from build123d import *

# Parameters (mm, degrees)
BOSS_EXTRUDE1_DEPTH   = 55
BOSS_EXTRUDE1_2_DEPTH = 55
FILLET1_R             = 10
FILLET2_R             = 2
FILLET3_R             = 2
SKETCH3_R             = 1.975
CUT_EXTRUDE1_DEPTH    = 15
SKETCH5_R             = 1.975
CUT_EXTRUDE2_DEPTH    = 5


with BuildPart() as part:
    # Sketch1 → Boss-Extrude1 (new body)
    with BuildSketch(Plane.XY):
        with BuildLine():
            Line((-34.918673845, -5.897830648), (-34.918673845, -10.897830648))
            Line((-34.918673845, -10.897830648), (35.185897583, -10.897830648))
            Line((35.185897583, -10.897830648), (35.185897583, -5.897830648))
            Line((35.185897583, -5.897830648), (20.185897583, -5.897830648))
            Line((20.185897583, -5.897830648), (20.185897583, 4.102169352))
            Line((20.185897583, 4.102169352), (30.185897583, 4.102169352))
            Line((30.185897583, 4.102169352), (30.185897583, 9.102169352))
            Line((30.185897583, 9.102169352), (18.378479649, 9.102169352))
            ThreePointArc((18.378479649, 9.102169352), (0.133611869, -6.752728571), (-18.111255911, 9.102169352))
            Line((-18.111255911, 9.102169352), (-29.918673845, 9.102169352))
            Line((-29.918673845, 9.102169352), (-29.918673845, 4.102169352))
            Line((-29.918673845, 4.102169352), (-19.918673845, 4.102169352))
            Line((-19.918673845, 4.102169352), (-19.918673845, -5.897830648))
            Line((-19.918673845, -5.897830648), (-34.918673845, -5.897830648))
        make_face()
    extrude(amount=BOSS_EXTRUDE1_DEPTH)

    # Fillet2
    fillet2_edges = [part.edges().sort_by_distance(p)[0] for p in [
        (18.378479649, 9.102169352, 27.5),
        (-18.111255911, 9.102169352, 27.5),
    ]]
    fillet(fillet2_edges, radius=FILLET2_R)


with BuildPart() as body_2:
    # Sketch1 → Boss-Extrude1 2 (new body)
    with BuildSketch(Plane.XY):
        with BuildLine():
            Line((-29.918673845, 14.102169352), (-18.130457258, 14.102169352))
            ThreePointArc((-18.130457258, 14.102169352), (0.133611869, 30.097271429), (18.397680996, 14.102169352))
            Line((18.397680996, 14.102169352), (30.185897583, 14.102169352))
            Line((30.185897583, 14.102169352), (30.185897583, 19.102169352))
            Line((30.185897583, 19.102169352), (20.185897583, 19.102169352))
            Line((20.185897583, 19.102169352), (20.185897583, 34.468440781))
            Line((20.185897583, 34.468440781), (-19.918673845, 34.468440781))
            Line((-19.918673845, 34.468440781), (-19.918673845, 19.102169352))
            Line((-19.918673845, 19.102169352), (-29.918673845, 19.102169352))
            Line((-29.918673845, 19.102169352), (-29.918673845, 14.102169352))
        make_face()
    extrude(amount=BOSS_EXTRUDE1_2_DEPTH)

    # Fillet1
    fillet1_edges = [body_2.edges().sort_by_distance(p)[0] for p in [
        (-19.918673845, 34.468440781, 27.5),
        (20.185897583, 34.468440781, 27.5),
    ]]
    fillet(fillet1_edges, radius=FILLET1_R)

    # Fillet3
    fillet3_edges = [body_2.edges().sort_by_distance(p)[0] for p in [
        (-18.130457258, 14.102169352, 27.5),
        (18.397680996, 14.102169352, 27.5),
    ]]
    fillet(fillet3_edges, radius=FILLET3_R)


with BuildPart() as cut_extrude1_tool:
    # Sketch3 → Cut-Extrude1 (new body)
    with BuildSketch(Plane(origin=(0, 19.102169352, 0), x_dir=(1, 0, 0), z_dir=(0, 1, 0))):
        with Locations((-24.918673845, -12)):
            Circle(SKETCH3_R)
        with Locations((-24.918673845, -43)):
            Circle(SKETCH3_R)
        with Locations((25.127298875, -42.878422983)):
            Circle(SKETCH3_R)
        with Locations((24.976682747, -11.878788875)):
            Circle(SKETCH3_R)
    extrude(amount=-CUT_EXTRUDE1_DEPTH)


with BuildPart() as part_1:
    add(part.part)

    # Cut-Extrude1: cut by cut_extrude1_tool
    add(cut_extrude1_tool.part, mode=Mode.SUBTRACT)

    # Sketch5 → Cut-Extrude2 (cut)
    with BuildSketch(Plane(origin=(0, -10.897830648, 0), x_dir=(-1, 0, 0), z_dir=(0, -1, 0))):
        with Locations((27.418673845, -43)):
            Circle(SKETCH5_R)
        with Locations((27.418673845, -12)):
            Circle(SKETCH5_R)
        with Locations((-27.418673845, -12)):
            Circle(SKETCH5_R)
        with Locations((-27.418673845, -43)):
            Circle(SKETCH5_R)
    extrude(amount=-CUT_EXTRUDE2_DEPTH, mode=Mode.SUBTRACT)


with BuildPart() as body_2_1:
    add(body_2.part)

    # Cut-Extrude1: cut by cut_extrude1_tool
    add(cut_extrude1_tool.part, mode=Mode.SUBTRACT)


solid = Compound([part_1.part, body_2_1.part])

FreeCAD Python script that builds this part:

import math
import FreeCAD as App
import Part
import Sketcher
Q = App.Units.Quantity


def edges_at(feature, points):
    """Names of the edges that pass closest to the given points."""
    edges = feature.Shape.Edges
    near = lambda p: min(range(len(edges)), key=lambda i: edges[i].distToShape(Part.Vertex(*p))[0])
    return sorted({f"Edge{near(p) + 1}" for p in points})

doc = App.newDocument("Part")
body = doc.addObject("PartDesign::Body", "Body")

# Sketch on XY plane
sketch1 = body.newObject("Sketcher::SketchObject", "Sketch")
sketch1.AttachmentSupport = (doc.getObject("XY_Plane"), [""])
sketch1.MapMode = "FlatFace"
sketch1.addGeometry(Part.LineSegment(App.Vector(-34.9, -5.9, 0), App.Vector(-34.9, -10.9, 0)), False)
sketch1.addGeometry(Part.LineSegment(App.Vector(-34.9, -10.9, 0), App.Vector(35.2, -10.9, 0)), False)
sketch1.addGeometry(Part.LineSegment(App.Vector(35.2, -10.9, 0), App.Vector(35.2, -5.9, 0)), False)
sketch1.addGeometry(Part.LineSegment(App.Vector(35.2, -5.9, 0), App.Vector(20.2, -5.9, 0)), False)
sketch1.addGeometry(Part.LineSegment(App.Vector(20.2, -5.9, 0), App.Vector(20.2, 4.1, 0)), False)
sketch1.addGeometry(Part.LineSegment(App.Vector(20.2, 4.1, 0), App.Vector(30.2, 4.1, 0)), False)
sketch1.addGeometry(Part.LineSegment(App.Vector(30.2, 4.1, 0), App.Vector(30.2, 9.1, 0)), False)
sketch1.addGeometry(Part.LineSegment(App.Vector(30.2, 9.1, 0), App.Vector(18.4, 9.1, 0)), False)
sketch1.addGeometry(Part.ArcOfCircle(Part.Circle(App.Vector(0.1, 11.7, 0), App.Vector(0, 0, 1), 18.4), math.radians(-172), math.radians(-8)), False)
sketch1.addGeometry(Part.LineSegment(App.Vector(-18.1, 9.1, 0), App.Vector(-29.9, 9.1, 0)), False)
sketch1.addGeometry(Part.LineSegment(App.Vector(-29.9, 9.1, 0), App.Vector(-29.9, 4.1, 0)), False)
sketch1.addGeometry(Part.LineSegment(App.Vector(-29.9, 4.1, 0), App.Vector(-19.9, 4.1, 0)), False)
sketch1.addGeometry(Part.LineSegment(App.Vector(-19.9, 4.1, 0), App.Vector(-19.9, -5.9, 0)), False)
sketch1.addGeometry(Part.LineSegment(App.Vector(-19.9, -5.9, 0), App.Vector(-34.9, -5.9, 0)), False)
sketch1.addConstraint(Sketcher.Constraint("Coincident", 0, 2, 1, 1))
sketch1.addConstraint(Sketcher.Constraint("Coincident", 1, 2, 2, 1))
sketch1.addConstraint(Sketcher.Constraint("Coincident", 2, 2, 3, 1))
sketch1.addConstraint(Sketcher.Constraint("Coincident", 3, 2, 4, 1))
sketch1.addConstraint(Sketcher.Constraint("Coincident", 4, 2, 5, 1))
sketch1.addConstraint(Sketcher.Constraint("Coincident", 5, 2, 6, 1))
sketch1.addConstraint(Sketcher.Constraint("Coincident", 6, 2, 7, 1))
sketch1.addConstraint(Sketcher.Constraint("Coincident", 7, 2, 8, 2))
sketch1.addConstraint(Sketcher.Constraint("Coincident", 8, 1, 9, 1))
sketch1.addConstraint(Sketcher.Constraint("Coincident", 9, 2, 10, 1))
sketch1.addConstraint(Sketcher.Constraint("Coincident", 10, 2, 11, 1))
sketch1.addConstraint(Sketcher.Constraint("Coincident", 11, 2, 12, 1))
sketch1.addConstraint(Sketcher.Constraint("Coincident", 12, 2, 13, 1))
sketch1.addConstraint(Sketcher.Constraint("Coincident", 13, 2, 0, 1))
sketch1.addConstraint(Sketcher.Constraint("Vertical", 0))
sketch1.addConstraint(Sketcher.Constraint("Horizontal", 1))
sketch1.addConstraint(Sketcher.Constraint("Vertical", 2))
sketch1.addConstraint(Sketcher.Constraint("Horizontal", 3))
sketch1.addConstraint(Sketcher.Constraint("Vertical", 4))
sketch1.addConstraint(Sketcher.Constraint("Horizontal", 5))
sketch1.addConstraint(Sketcher.Constraint("Vertical", 6))
sketch1.addConstraint(Sketcher.Constraint("Horizontal", 7))
sketch1.addConstraint(Sketcher.Constraint("Horizontal", 9))
sketch1.addConstraint(Sketcher.Constraint("Vertical", 10))
sketch1.addConstraint(Sketcher.Constraint("Horizontal", 11))
sketch1.addConstraint(Sketcher.Constraint("Vertical", 12))
sketch1.addConstraint(Sketcher.Constraint("Horizontal", 13))
sketch1.addConstraint(Sketcher.Constraint("Horizontal", 7, 2, 8, 1))
sketch1.addConstraint(Sketcher.Constraint("Horizontal", 5, 2, 10, 2))
sketch1.addConstraint(Sketcher.Constraint("Horizontal", 3, 2, 12, 2))
sketch1.addConstraint(Sketcher.Constraint("Equal", 7, 9))
sketch1.addConstraint(Sketcher.Constraint("Equal", 5, 11))
sketch1.addConstraint(Sketcher.Constraint("Equal", 3, 13))
sketch1.addConstraint(Sketcher.Constraint("Equal", 11, 4))
sketch1.addConstraint(Sketcher.Constraint("Equal", 2, 6))
sketch1.addConstraint(Sketcher.Constraint("DistanceX", 3, 2, 3, 1, Q("15 mm")))
sketch1.addConstraint(Sketcher.Constraint("DistanceX", 5, 1, 5, 2, Q("10 mm")))
sketch1.addConstraint(Sketcher.Constraint("DistanceY", 0, 2, 0, 1, Q("5 mm")))
sketch1.addConstraint(Sketcher.Constraint("Radius", 8, Q("18.425 mm")))
sketch1.addConstraint(Sketcher.Constraint("DistanceX", 1, 1, 1, 2, Q("70.104571 mm")))
sketch1.addConstraint(Sketcher.Constraint("DistanceX", 7, 2, 7, 1, Q("11.807418 mm")))
sketch1.addConstraint(Sketcher.Constraint("DistanceX", -1, 1, 8, 3, Q("0.133612 mm")))
sketch1.addConstraint(Sketcher.Constraint("DistanceY", -1, 1, 8, 3, Q("11.672271 mm")))
pad1 = body.newObject("PartDesign::Pad", "Pad")
pad1.Profile = sketch1
pad1.Length = 55
doc.recompute()

fillet = body.newObject("PartDesign::Fillet", "Fillet")
fillet.Base = (pad1, edges_at(pad1, [(18.378, 9.102, 27.5), (-18.111, 9.102, 27.5)]))
fillet.Radius = 2
body2 = doc.addObject("PartDesign::Body", "Body001")

# Sketch on XY plane
sketch2 = body2.newObject("Sketcher::SketchObject", "Sketch001")
sketch2.AttachmentSupport = (doc.getObject("XY_Plane001"), [""])
sketch2.MapMode = "FlatFace"
sketch2.addGeometry(Part.LineSegment(App.Vector(-30, 14, 0), App.Vector(-18, 14, 0)), False)
sketch2.addGeometry(Part.ArcOfCircle(Part.Circle(App.Vector(0, 12, 0), App.Vector(0, 0, 1), 18), math.radians(8), math.radians(172)), False)
sketch2.addGeometry(Part.LineSegment(App.Vector(18, 14, 0), App.Vector(30, 14, 0)), False)
sketch2.addGeometry(Part.LineSegment(App.Vector(30, 14, 0), App.Vector(30, 19, 0)), False)
sketch2.addGeometry(Part.LineSegment(App.Vector(30, 19, 0), App.Vector(20, 19, 0)), False)
sketch2.addGeometry(Part.LineSegment(App.Vector(20, 19, 0), App.Vector(20, 34, 0)), False)
sketch2.addGeometry(Part.LineSegment(App.Vector(20, 34, 0), App.Vector(-20, 34, 0)), False)
sketch2.addGeometry(Part.LineSegment(App.Vector(-20, 34, 0), App.Vector(-20, 19, 0)), False)
sketch2.addGeometry(Part.LineSegment(App.Vector(-20, 19, 0), App.Vector(-30, 19, 0)), False)
sketch2.addGeometry(Part.LineSegment(App.Vector(-30, 19, 0), App.Vector(-30, 14, 0)), False)
sketch2.addConstraint(Sketcher.Constraint("Coincident", 0, 2, 1, 2))
sketch2.addConstraint(Sketcher.Constraint("Coincident", 1, 1, 2, 1))
sketch2.addConstraint(Sketcher.Constraint("Coincident", 2, 2, 3, 1))
sketch2.addConstraint(Sketcher.Constraint("Coincident", 3, 2, 4, 1))
sketch2.addConstraint(Sketcher.Constraint("Coincident", 4, 2, 5, 1))
sketch2.addConstraint(Sketcher.Constraint("Coincident", 5, 2, 6, 1))
sketch2.addConstraint(Sketcher.Constraint("Coincident", 6, 2, 7, 1))
sketch2.addConstraint(Sketcher.Constraint("Coincident", 7, 2, 8, 1))
sketch2.addConstraint(Sketcher.Constraint("Coincident", 8, 2, 9, 1))
sketch2.addConstraint(Sketcher.Constraint("Coincident", 9, 2, 0, 1))
sketch2.addConstraint(Sketcher.Constraint("Horizontal", 0))
sketch2.addConstraint(Sketcher.Constraint("Horizontal", 2))
sketch2.addConstraint(Sketcher.Constraint("Vertical", 3))
sketch2.addConstraint(Sketcher.Constraint("Horizontal", 4))
sketch2.addConstraint(Sketcher.Constraint("Vertical", 5))
sketch2.addConstraint(Sketcher.Constraint("Horizontal", 6))
sketch2.addConstraint(Sketcher.Constraint("Vertical", 7))
sketch2.addConstraint(Sketcher.Constraint("Horizontal", 8))
sketch2.addConstraint(Sketcher.Constraint("Vertical", 9))
sketch2.addConstraint(Sketcher.Constraint("Horizontal", 0, 2, 1, 1))
sketch2.addConstraint(Sketcher.Constraint("Horizontal", 4, 2, 7, 2))
sketch2.addConstraint(Sketcher.Constraint("Equal", 0, 2))
sketch2.addConstraint(Sketcher.Constraint("Equal", 4, 8))
sketch2.addConstraint(Sketcher.Constraint("DistanceX", 4, 2, 4, 1, Q("10 mm")))
sketch2.addConstraint(Sketcher.Constraint("DistanceY", 3, 1, 3, 2, Q("5 mm")))
sketch2.addConstraint(Sketcher.Constraint("Radius", 1, Q("18.425 mm")))
sketch2.addConstraint(Sketcher.Constraint("DistanceX", 6, 2, 6, 1, Q("40.104571 mm")))
sketch2.addConstraint(Sketcher.Constraint("DistanceY", 5, 1, 5, 2, Q("15.366271 mm")))
sketch2.addConstraint(Sketcher.Constraint("DistanceX", 0, 1, 0, 2, Q("11.788217 mm")))
sketch2.addConstraint(Sketcher.Constraint("DistanceX", -1, 1, 1, 3, Q("0.133612 mm")))
sketch2.addConstraint(Sketcher.Constraint("DistanceY", -1, 1, 1, 3, Q("11.672271 mm")))
pad2 = body2.newObject("PartDesign::Pad", "Pad001")
pad2.Profile = sketch2
pad2.Length = 55
doc.recompute()

fillet2 = body2.newObject("PartDesign::Fillet", "Fillet001")
fillet2.Base = (pad2, edges_at(pad2, [(-19.919, 34.468, 27.5), (20.186, 34.468, 27.5)]))
fillet2.Radius = 10
doc.recompute()

fillet3 = body2.newObject("PartDesign::Fillet", "Fillet002")
fillet3.Base = (fillet2, edges_at(fillet2, [(-18.13, 14.102, 27.5), (18.398, 14.102, 27.5)]))
fillet3.Radius = 2
body3 = doc.addObject("PartDesign::Body", "Body002")
body3.AllowCompound = True

# Sketch on XZ plane
sketch3 = body3.newObject("Sketcher::SketchObject", "Sketch002")
sketch3.AttachmentSupport = (doc.getObject("XZ_Plane002"), [""])
sketch3.MapMode = "FlatFace"
sketch3.AttachmentOffset = App.Placement(App.Vector(0, 0, -19.102169), App.Rotation())
sketch3.addGeometry(Part.Circle(App.Vector(-24.9, 12, 0), App.Vector(0, 0, 1), 2), False)
sketch3.addGeometry(Part.Circle(App.Vector(-24.9, 43, 0), App.Vector(0, 0, 1), 2), False)
sketch3.addGeometry(Part.Circle(App.Vector(25.1, 42.9, 0), App.Vector(0, 0, 1), 2), False)
sketch3.addGeometry(Part.Circle(App.Vector(25, 11.9, 0), App.Vector(0, 0, 1), 2), False)
sketch3.addConstraint(Sketcher.Constraint("Equal", 0, 1))
sketch3.addConstraint(Sketcher.Constraint("Equal", 1, 2))
sketch3.addConstraint(Sketcher.Constraint("Equal", 2, 3))
sketch3.addConstraint(Sketcher.Constraint("Vertical", 0, 3, 1, 3))
sketch3.addConstraint(Sketcher.Constraint("Diameter", 0, Q("3.95 mm")))
sketch3.addConstraint(Sketcher.Constraint("DistanceY", -1, 1, 0, 3, Q("12 mm")))
sketch3.addConstraint(Sketcher.Constraint("DistanceY", -1, 1, 1, 3, Q("43 mm")))
sketch3.addConstraint(Sketcher.Constraint("DistanceX", -1, 1, 2, 3, Q("25.127299 mm")))
sketch3.addConstraint(Sketcher.Constraint("DistanceY", -1, 1, 3, 3, Q("11.878789 mm")))
sketch3.addConstraint(Sketcher.Constraint("DistanceX", 0, 3, -1, 1, Q("24.918674 mm")))
sketch3.addConstraint(Sketcher.Constraint("DistanceY", -1, 1, 2, 3, Q("42.878423 mm")))
sketch3.addConstraint(Sketcher.Constraint("DistanceX", -1, 1, 3, 3, Q("24.976683 mm")))
pad3 = body3.newObject("PartDesign::Pad", "Pad002")
pad3.Profile = sketch3
pad3.Length = 15
doc.recompute()

body4 = doc.addObject("PartDesign::Body", "Body003")
body4.BaseFeature = body3
boolean = body.newObject("PartDesign::Boolean", "Boolean")
boolean.Type = "Cut"
boolean.addObjects([body4])
doc.recompute()

# Sketch on XZ plane
sketch4 = body.newObject("Sketcher::SketchObject", "Sketch003")
sketch4.AttachmentSupport = (doc.getObject("XZ_Plane"), [""])
sketch4.MapMode = "FlatFace"
sketch4.AttachmentOffset = App.Placement(App.Vector(0, 0, 10.897831), App.Rotation())
sketch4.addGeometry(Part.Circle(App.Vector(-27.4, 43, 0), App.Vector(0, 0, 1), 2), False)
sketch4.addGeometry(Part.Circle(App.Vector(-27.4, 12, 0), App.Vector(0, 0, 1), 2), False)
sketch4.addGeometry(Part.Circle(App.Vector(27.4, 12, 0), App.Vector(0, 0, 1), 2), False)
sketch4.addGeometry(Part.Circle(App.Vector(27.4, 43, 0), App.Vector(0, 0, 1), 2), False)
sketch4.addConstraint(Sketcher.Constraint("Equal", 0, 1))
sketch4.addConstraint(Sketcher.Constraint("Equal", 1, 2))
sketch4.addConstraint(Sketcher.Constraint("Equal", 2, 3))
sketch4.addConstraint(Sketcher.Constraint("Symmetric", 1, 3, 2, 3, -2))
sketch4.addConstraint(Sketcher.Constraint("Symmetric", 0, 3, 3, 3, -2))
sketch4.addConstraint(Sketcher.Constraint("Vertical", 0, 3, 1, 3))
sketch4.addConstraint(Sketcher.Constraint("Diameter", 0, Q("3.95 mm")))
sketch4.addConstraint(Sketcher.Constraint("DistanceY", -1, 1, 0, 3, Q("43 mm")))
sketch4.addConstraint(Sketcher.Constraint("DistanceY", -1, 1, 1, 3, Q("12 mm")))
sketch4.addConstraint(Sketcher.Constraint("DistanceX", 0, 3, -1, 1, Q("27.418674 mm")))
pocket1 = body.newObject("PartDesign::Pocket", "Pocket")
pocket1.Profile = sketch4
pocket1.Length = 5
doc.recompute()

boolean2 = body2.newObject("PartDesign::Boolean", "Boolean001")
boolean2.Type = "Cut"
boolean2.addObjects([body3])

doc.recompute()
